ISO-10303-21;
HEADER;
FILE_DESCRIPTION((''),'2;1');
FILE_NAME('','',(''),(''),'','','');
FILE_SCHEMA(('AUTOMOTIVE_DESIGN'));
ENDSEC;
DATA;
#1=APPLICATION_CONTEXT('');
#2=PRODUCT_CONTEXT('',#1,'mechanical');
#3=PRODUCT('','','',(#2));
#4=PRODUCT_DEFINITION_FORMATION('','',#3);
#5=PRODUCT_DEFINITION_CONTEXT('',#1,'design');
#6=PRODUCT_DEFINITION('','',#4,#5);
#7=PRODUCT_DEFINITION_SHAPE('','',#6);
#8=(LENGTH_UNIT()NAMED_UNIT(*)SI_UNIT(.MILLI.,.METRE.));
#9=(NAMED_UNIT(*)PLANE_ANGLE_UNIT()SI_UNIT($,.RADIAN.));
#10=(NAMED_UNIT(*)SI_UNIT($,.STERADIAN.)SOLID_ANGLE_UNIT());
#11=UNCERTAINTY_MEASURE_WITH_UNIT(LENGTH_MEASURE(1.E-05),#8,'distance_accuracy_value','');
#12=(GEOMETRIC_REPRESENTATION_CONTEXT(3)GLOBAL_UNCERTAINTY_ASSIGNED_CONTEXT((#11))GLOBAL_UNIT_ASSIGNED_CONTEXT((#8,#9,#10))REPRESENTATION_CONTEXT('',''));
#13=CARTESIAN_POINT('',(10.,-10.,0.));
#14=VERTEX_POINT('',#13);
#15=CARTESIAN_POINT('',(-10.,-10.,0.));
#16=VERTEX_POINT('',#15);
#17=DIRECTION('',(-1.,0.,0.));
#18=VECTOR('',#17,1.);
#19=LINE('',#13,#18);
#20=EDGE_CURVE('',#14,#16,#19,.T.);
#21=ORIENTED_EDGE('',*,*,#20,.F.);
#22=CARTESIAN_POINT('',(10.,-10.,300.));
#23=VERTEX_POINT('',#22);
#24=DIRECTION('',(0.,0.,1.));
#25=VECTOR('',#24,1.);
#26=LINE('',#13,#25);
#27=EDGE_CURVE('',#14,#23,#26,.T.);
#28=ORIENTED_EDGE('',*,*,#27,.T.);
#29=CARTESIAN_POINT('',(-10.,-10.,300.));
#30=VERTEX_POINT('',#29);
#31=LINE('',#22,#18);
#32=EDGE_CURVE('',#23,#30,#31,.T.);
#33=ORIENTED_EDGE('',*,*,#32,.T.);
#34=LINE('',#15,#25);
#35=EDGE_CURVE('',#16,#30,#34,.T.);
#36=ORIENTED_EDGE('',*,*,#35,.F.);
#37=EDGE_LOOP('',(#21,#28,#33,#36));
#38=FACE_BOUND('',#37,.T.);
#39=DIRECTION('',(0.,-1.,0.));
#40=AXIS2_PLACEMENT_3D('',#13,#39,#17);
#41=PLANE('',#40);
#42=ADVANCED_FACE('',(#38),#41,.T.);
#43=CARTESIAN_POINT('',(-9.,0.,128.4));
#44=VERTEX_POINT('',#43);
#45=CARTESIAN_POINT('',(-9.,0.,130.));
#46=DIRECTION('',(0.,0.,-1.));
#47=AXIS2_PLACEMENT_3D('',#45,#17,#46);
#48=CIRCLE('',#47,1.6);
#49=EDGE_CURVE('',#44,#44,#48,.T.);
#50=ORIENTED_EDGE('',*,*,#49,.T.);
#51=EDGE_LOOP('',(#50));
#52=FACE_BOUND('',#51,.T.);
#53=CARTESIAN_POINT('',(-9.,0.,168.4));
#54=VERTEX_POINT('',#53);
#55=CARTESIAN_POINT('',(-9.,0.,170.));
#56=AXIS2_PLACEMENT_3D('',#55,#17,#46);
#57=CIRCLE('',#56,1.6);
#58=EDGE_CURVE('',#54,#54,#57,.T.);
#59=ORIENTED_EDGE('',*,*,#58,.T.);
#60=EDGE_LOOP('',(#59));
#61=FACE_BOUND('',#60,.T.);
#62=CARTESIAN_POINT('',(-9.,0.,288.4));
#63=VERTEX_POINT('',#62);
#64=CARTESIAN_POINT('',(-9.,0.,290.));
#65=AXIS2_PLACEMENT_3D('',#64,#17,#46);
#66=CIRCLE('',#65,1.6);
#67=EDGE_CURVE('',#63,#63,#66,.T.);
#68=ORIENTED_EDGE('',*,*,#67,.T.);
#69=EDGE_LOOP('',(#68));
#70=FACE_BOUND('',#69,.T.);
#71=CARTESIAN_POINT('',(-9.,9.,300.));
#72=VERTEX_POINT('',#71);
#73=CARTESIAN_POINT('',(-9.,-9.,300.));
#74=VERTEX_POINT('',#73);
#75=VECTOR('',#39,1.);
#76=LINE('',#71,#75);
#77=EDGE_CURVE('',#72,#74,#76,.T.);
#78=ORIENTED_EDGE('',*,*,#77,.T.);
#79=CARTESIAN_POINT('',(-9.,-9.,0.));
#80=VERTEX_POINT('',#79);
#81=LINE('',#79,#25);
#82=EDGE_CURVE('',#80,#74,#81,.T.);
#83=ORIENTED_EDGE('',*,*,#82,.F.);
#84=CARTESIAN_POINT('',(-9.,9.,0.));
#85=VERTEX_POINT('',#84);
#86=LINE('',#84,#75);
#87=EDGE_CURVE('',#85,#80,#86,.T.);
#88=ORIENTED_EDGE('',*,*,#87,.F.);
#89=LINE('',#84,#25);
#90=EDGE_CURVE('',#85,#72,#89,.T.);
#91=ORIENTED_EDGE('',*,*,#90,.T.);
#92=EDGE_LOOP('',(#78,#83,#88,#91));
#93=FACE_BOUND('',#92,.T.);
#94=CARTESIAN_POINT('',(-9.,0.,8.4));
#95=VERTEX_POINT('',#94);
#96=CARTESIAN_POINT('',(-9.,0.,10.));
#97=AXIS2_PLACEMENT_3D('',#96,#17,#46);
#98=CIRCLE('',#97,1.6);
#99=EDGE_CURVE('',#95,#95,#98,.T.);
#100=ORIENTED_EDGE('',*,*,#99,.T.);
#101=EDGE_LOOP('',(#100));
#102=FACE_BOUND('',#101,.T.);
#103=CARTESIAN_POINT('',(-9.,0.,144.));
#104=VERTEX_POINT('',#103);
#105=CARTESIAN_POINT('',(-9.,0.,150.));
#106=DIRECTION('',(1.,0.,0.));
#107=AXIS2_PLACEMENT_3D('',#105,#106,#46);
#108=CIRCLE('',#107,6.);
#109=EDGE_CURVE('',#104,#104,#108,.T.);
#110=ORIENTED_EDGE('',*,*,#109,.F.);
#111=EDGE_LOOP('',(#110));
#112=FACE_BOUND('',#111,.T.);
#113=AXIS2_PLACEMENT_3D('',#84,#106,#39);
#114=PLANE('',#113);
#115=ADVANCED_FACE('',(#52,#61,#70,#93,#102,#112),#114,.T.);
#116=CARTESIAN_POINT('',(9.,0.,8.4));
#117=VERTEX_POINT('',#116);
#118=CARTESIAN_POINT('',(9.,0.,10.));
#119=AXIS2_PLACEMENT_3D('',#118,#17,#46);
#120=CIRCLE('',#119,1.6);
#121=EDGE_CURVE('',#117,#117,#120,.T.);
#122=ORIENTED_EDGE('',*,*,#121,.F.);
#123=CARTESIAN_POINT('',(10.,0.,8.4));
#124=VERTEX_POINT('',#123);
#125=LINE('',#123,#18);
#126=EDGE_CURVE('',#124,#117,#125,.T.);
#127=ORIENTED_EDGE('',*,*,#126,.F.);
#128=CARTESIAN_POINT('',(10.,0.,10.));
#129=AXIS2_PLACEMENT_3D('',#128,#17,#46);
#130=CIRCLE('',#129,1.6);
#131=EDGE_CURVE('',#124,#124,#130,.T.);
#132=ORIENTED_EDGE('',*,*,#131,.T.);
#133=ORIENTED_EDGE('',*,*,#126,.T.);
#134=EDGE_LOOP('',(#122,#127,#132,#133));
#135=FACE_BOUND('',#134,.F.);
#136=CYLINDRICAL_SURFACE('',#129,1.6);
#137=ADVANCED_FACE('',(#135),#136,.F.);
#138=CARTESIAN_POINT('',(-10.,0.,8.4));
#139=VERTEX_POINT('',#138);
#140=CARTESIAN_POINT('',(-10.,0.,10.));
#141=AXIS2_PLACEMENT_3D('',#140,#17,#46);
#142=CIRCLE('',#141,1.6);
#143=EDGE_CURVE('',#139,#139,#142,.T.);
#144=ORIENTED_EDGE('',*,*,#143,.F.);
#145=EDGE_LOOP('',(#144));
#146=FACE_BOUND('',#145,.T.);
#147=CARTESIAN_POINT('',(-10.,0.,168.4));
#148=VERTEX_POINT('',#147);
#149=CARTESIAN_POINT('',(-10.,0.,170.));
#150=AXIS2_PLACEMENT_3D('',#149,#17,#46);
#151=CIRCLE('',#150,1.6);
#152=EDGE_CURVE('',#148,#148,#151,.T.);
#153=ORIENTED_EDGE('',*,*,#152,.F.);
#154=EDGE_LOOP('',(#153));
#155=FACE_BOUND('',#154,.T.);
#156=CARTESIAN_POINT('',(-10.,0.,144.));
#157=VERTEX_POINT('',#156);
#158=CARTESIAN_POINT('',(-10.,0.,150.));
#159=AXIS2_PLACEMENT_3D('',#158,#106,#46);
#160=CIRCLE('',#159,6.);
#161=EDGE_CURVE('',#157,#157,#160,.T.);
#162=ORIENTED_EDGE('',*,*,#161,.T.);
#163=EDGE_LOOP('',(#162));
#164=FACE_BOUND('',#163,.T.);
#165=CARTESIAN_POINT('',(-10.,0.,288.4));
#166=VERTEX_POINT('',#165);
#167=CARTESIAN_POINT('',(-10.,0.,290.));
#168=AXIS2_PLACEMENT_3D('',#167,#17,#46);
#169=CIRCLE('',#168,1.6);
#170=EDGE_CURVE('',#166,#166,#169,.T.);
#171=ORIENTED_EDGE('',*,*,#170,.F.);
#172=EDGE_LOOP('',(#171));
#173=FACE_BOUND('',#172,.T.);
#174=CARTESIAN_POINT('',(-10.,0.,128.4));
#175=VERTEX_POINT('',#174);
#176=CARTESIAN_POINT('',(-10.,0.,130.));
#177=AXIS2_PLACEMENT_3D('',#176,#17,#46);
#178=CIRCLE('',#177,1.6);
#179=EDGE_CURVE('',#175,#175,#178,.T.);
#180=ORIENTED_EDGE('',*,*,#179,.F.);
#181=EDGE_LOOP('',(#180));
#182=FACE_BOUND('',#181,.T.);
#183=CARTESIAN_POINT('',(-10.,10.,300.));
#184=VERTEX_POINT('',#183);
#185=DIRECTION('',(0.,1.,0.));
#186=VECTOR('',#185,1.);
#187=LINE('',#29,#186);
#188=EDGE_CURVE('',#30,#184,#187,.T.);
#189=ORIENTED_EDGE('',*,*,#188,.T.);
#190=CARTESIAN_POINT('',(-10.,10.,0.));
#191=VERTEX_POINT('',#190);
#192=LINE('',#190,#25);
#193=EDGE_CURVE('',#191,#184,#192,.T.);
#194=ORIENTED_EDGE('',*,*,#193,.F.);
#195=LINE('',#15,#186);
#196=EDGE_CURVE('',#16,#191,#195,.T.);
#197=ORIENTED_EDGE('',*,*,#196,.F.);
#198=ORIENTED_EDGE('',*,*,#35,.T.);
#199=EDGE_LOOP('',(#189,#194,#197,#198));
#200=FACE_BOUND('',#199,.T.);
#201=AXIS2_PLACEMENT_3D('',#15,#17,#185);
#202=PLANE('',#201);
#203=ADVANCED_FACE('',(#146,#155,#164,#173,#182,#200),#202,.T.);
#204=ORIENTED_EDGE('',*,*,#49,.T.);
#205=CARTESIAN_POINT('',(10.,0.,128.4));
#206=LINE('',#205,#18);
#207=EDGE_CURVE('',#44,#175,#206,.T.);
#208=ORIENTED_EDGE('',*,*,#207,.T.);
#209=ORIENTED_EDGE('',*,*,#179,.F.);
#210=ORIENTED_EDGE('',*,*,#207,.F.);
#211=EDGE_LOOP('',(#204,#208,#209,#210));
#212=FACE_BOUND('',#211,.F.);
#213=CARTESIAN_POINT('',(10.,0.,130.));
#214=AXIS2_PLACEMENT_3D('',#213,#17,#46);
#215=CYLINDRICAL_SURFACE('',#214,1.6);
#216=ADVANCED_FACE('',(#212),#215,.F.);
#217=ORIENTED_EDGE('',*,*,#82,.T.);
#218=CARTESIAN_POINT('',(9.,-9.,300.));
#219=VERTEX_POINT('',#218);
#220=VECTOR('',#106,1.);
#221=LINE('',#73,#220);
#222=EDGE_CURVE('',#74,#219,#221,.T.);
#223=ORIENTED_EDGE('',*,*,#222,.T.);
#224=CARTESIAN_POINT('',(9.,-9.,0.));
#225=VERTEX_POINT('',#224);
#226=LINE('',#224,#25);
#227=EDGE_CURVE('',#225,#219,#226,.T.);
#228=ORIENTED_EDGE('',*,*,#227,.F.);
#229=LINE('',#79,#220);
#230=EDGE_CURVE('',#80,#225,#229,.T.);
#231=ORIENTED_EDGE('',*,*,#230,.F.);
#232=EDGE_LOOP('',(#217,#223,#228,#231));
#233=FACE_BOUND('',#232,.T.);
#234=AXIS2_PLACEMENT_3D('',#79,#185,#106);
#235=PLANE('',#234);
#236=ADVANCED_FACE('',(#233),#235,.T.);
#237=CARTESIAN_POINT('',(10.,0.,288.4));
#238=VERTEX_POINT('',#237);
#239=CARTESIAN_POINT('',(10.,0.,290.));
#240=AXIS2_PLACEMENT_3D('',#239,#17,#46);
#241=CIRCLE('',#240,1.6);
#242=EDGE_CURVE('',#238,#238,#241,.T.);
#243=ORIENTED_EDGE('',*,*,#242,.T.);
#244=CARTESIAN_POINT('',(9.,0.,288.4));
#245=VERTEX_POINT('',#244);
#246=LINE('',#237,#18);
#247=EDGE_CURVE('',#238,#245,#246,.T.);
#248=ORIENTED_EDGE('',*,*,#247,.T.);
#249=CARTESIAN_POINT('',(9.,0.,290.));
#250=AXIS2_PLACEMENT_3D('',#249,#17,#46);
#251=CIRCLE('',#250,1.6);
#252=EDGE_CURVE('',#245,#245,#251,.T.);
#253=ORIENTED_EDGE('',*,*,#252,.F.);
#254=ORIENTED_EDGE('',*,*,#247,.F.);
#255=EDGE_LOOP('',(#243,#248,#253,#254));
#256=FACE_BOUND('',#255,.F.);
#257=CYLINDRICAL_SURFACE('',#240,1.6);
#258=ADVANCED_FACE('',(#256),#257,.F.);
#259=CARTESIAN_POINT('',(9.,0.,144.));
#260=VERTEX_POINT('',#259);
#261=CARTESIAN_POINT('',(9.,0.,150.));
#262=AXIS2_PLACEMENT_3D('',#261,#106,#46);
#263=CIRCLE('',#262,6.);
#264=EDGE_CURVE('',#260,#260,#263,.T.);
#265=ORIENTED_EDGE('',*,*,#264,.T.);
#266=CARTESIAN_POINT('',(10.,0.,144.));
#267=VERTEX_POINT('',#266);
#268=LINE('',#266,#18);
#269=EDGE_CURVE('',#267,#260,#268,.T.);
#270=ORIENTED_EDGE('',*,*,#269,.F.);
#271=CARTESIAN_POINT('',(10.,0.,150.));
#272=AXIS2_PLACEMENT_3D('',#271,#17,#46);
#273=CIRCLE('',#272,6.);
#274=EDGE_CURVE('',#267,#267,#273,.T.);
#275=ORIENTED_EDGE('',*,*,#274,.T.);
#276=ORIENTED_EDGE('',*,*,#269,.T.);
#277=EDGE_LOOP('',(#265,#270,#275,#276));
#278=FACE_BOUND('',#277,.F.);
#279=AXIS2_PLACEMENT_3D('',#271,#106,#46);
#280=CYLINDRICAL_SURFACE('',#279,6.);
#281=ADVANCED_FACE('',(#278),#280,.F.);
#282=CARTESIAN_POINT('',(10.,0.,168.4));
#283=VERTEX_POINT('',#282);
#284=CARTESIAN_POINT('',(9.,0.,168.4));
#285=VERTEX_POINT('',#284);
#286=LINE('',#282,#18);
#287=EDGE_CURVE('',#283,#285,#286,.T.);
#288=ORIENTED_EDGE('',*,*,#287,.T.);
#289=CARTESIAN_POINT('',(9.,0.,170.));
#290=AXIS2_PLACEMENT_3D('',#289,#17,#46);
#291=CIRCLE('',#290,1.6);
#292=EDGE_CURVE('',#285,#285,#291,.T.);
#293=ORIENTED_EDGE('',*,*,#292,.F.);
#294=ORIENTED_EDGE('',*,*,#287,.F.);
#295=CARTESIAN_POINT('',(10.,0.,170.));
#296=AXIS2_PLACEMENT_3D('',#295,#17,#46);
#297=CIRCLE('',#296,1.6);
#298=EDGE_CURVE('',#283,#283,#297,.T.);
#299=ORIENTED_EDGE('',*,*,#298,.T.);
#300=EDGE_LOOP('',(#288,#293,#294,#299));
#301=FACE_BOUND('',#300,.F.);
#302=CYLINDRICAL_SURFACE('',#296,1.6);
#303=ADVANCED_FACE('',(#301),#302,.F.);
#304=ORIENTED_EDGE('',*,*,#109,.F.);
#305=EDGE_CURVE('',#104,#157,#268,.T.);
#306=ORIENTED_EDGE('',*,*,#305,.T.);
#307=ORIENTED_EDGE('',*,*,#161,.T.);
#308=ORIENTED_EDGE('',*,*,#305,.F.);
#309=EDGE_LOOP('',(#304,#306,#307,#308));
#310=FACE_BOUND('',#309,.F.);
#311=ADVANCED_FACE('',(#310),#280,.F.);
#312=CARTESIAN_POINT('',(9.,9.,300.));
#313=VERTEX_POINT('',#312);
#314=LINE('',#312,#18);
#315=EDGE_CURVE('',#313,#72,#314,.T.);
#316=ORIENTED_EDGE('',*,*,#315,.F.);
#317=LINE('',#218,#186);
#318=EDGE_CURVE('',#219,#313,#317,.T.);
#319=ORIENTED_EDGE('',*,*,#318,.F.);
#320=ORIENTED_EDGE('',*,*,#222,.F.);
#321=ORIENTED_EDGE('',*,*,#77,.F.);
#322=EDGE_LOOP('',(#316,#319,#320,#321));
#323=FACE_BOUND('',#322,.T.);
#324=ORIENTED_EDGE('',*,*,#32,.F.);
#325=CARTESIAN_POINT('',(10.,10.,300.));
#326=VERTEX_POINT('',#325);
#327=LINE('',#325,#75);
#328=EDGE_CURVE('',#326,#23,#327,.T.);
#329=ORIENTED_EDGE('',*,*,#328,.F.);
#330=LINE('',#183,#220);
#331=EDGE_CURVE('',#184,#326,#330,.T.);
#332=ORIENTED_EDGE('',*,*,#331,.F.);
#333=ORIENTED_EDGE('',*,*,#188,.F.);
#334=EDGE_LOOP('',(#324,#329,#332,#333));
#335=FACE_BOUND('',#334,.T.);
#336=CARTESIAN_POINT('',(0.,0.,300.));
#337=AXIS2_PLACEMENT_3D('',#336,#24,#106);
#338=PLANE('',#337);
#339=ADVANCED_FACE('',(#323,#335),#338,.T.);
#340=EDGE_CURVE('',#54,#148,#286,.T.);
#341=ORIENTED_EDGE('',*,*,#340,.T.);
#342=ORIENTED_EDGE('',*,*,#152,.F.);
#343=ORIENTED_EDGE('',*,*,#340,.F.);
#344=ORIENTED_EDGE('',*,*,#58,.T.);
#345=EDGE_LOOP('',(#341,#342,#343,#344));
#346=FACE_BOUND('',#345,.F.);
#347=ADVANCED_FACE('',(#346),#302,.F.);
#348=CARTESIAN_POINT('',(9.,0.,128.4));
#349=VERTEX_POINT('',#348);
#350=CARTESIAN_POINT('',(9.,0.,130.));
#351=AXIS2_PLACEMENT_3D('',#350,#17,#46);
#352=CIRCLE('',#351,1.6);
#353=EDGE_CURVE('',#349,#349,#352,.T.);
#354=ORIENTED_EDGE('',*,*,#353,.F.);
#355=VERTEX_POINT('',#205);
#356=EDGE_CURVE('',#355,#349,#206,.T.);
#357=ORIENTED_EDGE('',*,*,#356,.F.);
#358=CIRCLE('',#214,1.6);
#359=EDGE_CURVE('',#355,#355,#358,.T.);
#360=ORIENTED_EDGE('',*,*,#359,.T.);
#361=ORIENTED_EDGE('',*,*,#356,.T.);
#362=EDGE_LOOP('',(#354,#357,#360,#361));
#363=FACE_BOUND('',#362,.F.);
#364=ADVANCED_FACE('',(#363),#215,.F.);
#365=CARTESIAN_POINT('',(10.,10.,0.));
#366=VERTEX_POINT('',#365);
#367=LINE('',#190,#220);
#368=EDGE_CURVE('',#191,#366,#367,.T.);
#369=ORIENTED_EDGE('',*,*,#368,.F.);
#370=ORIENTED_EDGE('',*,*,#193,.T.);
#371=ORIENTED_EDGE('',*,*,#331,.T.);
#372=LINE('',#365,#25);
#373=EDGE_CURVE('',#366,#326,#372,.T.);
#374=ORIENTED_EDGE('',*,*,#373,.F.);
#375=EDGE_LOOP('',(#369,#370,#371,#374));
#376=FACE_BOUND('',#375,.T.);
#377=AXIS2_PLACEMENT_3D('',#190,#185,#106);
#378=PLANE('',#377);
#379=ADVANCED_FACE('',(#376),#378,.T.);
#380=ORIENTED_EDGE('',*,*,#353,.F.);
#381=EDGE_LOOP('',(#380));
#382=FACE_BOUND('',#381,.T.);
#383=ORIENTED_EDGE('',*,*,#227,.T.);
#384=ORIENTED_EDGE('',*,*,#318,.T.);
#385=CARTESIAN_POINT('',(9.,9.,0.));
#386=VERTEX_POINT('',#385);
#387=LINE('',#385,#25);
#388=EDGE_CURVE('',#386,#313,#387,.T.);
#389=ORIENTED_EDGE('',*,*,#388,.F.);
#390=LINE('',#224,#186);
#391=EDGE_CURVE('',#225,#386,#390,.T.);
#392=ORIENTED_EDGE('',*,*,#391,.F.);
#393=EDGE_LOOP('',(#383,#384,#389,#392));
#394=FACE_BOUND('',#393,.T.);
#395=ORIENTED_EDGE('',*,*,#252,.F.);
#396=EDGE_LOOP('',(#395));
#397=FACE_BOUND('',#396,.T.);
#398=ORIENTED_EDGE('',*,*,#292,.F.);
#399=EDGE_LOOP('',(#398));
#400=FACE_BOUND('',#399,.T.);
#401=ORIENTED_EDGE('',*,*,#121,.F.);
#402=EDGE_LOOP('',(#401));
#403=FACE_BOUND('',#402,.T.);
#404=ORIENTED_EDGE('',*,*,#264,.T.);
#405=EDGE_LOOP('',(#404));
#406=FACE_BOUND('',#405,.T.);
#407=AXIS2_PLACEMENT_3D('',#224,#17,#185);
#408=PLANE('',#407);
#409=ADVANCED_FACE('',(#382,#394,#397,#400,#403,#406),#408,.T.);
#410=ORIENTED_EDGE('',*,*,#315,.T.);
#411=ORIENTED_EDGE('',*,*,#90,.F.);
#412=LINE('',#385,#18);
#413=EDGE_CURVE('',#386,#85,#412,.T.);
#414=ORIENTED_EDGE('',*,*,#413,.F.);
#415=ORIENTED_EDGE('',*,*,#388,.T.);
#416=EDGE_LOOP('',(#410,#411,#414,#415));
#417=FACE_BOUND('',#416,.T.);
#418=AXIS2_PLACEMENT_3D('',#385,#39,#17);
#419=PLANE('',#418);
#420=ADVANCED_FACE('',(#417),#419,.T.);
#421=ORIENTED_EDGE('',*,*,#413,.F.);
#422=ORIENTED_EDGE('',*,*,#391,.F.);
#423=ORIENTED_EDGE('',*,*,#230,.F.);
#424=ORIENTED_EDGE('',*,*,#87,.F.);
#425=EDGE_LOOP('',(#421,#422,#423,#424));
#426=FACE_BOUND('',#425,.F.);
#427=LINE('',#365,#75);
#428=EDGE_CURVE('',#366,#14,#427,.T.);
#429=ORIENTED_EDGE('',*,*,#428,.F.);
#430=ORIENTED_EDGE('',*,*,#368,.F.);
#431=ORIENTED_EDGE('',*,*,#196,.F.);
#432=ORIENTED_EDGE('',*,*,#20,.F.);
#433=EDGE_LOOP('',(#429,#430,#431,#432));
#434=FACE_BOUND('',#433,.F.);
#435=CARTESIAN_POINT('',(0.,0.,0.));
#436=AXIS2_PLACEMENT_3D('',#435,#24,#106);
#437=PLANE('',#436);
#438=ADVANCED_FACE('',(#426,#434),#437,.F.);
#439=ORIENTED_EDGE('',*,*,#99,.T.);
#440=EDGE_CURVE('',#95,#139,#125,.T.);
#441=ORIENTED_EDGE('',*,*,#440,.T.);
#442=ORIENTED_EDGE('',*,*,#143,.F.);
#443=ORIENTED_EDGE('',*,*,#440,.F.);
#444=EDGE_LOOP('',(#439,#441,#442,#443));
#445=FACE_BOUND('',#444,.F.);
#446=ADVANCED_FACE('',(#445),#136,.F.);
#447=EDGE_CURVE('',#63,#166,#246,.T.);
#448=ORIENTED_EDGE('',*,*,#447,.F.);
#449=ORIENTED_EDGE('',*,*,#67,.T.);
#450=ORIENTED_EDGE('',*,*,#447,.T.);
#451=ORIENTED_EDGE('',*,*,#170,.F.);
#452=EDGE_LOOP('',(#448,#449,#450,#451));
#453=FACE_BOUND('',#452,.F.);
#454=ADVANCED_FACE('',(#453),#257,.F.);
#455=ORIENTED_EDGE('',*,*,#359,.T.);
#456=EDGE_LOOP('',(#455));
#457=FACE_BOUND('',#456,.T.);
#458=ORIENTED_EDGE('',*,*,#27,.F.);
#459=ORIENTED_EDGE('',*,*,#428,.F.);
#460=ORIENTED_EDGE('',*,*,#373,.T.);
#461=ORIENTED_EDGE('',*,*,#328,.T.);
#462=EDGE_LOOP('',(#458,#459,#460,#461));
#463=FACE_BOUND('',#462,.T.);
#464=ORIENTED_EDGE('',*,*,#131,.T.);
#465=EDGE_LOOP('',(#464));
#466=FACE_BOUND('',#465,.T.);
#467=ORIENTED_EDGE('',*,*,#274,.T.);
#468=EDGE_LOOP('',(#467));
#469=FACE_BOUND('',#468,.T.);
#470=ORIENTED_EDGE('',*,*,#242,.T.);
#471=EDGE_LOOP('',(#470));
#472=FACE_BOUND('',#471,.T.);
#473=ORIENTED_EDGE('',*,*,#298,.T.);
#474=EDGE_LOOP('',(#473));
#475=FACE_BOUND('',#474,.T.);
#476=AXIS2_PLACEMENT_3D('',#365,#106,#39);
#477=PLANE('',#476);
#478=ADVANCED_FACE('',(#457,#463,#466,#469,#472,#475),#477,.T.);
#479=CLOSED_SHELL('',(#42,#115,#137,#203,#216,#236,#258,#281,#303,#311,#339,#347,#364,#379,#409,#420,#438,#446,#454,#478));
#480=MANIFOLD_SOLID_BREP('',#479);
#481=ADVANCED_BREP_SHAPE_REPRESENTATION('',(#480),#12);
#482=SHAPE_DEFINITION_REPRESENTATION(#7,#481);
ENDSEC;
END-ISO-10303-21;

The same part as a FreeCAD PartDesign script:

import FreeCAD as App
import Part
import Sketcher

V = App.Vector
Q = App.Units.Quantity

doc = App.newDocument("Part")
body = doc.addObject("PartDesign::Body", "Body")

# Sketch on XY plane
sketch1 = body.newObject("Sketcher::SketchObject", "Sketch")
sketch1.AttachmentSupport = (doc.getObject("XY_Plane"), [""])
sketch1.MapMode = "FlatFace"
sketch1.addGeometry([
    Part.LineSegment(V(-10, -10, 0), V(10, -10, 0)),  # 0
    Part.LineSegment(V(10, -10, 0), V(10, 10, 0)),  # 1
    Part.LineSegment(V(10, 10, 0), V(-10, 10, 0)),  # 2
    Part.LineSegment(V(-10, 10, 0), V(-10, -10, 0)),  # 3
    Part.LineSegment(V(-9, 9, 0), V(9, 9, 0)),  # 4
    Part.LineSegment(V(9, 9, 0), V(9, -9, 0)),  # 5
    Part.LineSegment(V(9, -9, 0), V(-9, -9, 0)),  # 6
    Part.LineSegment(V(-9, -9, 0), V(-9, 9, 0)),  # 7
], False)
sketch1.addConstraint([
    Sketcher.Constraint("Coincident", 0, 2, 1, 1),
    Sketcher.Constraint("Coincident", 1, 2, 2, 1),
    Sketcher.Constraint("Coincident", 2, 2, 3, 1),
    Sketcher.Constraint("Coincident", 3, 2, 0, 1),
    Sketcher.Constraint("Coincident", 4, 2, 5, 1),
    Sketcher.Constraint("Coincident", 5, 2, 6, 1),
    Sketcher.Constraint("Coincident", 6, 2, 7, 1),
    Sketcher.Constraint("Coincident", 7, 2, 4, 1),
    Sketcher.Constraint("Horizontal", 0),
    Sketcher.Constraint("Vertical", 1),
    Sketcher.Constraint("Horizontal", 2),
    Sketcher.Constraint("Vertical", 3),
    Sketcher.Constraint("Horizontal", 4),
    Sketcher.Constraint("Vertical", 5),
    Sketcher.Constraint("Horizontal", 6),
    Sketcher.Constraint("Vertical", 7),
    Sketcher.Constraint("Symmetric", 0, 2, 2, 2, -1, 1),
    Sketcher.Constraint("Symmetric", 4, 2, 6, 2, -1, 1),
    Sketcher.Constraint("Equal", 2, 1),
    Sketcher.Constraint("Equal", 6, 5),
    Sketcher.Constraint("DistanceX", 0, 1, 0, 2, Q("20 mm")),
    Sketcher.Constraint("DistanceX", 4, 2, 1, 2, Q("1 mm")),
])
pad1 = body.newObject("PartDesign::Pad", "Pad")
pad1.Profile = sketch1
pad1.Length = 300

# Sketch on YZ plane
sketch2 = body.newObject("Sketcher::SketchObject", "Sketch001")
sketch2.AttachmentSupport = (doc.getObject("YZ_Plane"), [""])
sketch2.MapMode = "FlatFace"
sketch2.AttachmentOffset = App.Placement(V(0, 0, 10), App.Rotation())
sketch2.addGeometry([
    Part.Circle(V(0, 290, 0), V(0, 0, 1), 1.6),
    Part.Circle(V(0, 10, 0), V(0, 0, 1), 1.6),
    Part.Circle(V(0, 170, 0), V(0, 0, 1), 1.6),
    Part.Circle(V(0, 130, 0), V(0, 0, 1), 1.6),
], False)
sketch2.addConstraint([
    Sketcher.Constraint("Equal", 0, 1),
    Sketcher.Constraint("Equal", 1, 2),
    Sketcher.Constraint("Equal", 2, 3),
    Sketcher.Constraint("PointOnObject", 0, 3, -2),
    Sketcher.Constraint("PointOnObject", 1, 3, -2),
    Sketcher.Constraint("PointOnObject", 2, 3, -2),
    Sketcher.Constraint("PointOnObject", 3, 3, -2),
    Sketcher.Constraint("Diameter", 0, Q("3.2 mm")),
    Sketcher.Constraint("DistanceY", -1, 1, 0, 3, Q("290 mm")),
    Sketcher.Constraint("DistanceY", -1, 1, 1, 3, Q("10 mm")),
    Sketcher.Constraint("DistanceY", -1, 1, 2, 3, Q("170 mm")),
    Sketcher.Constraint("DistanceY", -1, 1, 3, 3, Q("130 mm")),
])
doc.recompute()
hole = body.newObject("PartDesign::Hole", "Hole")
hole.Profile = sketch2
hole.ThreadType = "None"
hole.Diameter = 3.2
hole.DepthType = "ThroughAll"

# Sketch on YZ plane
sketch3 = body.newObject("Sketcher::SketchObject", "Sketch002")
sketch3.AttachmentSupport = (doc.getObject("YZ_Plane"), [""])
sketch3.MapMode = "FlatFace"
sketch3.AttachmentOffset = App.Placement(V(0, 0, 10), App.Rotation())
sketch3.addGeometry(Part.Circle(V(0, 150, 0), V(0, 0, 1), 6), False)
sketch3.addConstraint([
    Sketcher.Constraint("PointOnObject", 0, 3, -2),
    Sketcher.Constraint("Diameter", 0, Q("12 mm")),
    Sketcher.Constraint("DistanceY", -1, 1, 0, 3, Q("150 mm")),
])
pocket1 = body.newObject("PartDesign::Pocket", "Pocket")
pocket1.Profile = sketch3
pocket1.Length = 300

doc.recompute()
